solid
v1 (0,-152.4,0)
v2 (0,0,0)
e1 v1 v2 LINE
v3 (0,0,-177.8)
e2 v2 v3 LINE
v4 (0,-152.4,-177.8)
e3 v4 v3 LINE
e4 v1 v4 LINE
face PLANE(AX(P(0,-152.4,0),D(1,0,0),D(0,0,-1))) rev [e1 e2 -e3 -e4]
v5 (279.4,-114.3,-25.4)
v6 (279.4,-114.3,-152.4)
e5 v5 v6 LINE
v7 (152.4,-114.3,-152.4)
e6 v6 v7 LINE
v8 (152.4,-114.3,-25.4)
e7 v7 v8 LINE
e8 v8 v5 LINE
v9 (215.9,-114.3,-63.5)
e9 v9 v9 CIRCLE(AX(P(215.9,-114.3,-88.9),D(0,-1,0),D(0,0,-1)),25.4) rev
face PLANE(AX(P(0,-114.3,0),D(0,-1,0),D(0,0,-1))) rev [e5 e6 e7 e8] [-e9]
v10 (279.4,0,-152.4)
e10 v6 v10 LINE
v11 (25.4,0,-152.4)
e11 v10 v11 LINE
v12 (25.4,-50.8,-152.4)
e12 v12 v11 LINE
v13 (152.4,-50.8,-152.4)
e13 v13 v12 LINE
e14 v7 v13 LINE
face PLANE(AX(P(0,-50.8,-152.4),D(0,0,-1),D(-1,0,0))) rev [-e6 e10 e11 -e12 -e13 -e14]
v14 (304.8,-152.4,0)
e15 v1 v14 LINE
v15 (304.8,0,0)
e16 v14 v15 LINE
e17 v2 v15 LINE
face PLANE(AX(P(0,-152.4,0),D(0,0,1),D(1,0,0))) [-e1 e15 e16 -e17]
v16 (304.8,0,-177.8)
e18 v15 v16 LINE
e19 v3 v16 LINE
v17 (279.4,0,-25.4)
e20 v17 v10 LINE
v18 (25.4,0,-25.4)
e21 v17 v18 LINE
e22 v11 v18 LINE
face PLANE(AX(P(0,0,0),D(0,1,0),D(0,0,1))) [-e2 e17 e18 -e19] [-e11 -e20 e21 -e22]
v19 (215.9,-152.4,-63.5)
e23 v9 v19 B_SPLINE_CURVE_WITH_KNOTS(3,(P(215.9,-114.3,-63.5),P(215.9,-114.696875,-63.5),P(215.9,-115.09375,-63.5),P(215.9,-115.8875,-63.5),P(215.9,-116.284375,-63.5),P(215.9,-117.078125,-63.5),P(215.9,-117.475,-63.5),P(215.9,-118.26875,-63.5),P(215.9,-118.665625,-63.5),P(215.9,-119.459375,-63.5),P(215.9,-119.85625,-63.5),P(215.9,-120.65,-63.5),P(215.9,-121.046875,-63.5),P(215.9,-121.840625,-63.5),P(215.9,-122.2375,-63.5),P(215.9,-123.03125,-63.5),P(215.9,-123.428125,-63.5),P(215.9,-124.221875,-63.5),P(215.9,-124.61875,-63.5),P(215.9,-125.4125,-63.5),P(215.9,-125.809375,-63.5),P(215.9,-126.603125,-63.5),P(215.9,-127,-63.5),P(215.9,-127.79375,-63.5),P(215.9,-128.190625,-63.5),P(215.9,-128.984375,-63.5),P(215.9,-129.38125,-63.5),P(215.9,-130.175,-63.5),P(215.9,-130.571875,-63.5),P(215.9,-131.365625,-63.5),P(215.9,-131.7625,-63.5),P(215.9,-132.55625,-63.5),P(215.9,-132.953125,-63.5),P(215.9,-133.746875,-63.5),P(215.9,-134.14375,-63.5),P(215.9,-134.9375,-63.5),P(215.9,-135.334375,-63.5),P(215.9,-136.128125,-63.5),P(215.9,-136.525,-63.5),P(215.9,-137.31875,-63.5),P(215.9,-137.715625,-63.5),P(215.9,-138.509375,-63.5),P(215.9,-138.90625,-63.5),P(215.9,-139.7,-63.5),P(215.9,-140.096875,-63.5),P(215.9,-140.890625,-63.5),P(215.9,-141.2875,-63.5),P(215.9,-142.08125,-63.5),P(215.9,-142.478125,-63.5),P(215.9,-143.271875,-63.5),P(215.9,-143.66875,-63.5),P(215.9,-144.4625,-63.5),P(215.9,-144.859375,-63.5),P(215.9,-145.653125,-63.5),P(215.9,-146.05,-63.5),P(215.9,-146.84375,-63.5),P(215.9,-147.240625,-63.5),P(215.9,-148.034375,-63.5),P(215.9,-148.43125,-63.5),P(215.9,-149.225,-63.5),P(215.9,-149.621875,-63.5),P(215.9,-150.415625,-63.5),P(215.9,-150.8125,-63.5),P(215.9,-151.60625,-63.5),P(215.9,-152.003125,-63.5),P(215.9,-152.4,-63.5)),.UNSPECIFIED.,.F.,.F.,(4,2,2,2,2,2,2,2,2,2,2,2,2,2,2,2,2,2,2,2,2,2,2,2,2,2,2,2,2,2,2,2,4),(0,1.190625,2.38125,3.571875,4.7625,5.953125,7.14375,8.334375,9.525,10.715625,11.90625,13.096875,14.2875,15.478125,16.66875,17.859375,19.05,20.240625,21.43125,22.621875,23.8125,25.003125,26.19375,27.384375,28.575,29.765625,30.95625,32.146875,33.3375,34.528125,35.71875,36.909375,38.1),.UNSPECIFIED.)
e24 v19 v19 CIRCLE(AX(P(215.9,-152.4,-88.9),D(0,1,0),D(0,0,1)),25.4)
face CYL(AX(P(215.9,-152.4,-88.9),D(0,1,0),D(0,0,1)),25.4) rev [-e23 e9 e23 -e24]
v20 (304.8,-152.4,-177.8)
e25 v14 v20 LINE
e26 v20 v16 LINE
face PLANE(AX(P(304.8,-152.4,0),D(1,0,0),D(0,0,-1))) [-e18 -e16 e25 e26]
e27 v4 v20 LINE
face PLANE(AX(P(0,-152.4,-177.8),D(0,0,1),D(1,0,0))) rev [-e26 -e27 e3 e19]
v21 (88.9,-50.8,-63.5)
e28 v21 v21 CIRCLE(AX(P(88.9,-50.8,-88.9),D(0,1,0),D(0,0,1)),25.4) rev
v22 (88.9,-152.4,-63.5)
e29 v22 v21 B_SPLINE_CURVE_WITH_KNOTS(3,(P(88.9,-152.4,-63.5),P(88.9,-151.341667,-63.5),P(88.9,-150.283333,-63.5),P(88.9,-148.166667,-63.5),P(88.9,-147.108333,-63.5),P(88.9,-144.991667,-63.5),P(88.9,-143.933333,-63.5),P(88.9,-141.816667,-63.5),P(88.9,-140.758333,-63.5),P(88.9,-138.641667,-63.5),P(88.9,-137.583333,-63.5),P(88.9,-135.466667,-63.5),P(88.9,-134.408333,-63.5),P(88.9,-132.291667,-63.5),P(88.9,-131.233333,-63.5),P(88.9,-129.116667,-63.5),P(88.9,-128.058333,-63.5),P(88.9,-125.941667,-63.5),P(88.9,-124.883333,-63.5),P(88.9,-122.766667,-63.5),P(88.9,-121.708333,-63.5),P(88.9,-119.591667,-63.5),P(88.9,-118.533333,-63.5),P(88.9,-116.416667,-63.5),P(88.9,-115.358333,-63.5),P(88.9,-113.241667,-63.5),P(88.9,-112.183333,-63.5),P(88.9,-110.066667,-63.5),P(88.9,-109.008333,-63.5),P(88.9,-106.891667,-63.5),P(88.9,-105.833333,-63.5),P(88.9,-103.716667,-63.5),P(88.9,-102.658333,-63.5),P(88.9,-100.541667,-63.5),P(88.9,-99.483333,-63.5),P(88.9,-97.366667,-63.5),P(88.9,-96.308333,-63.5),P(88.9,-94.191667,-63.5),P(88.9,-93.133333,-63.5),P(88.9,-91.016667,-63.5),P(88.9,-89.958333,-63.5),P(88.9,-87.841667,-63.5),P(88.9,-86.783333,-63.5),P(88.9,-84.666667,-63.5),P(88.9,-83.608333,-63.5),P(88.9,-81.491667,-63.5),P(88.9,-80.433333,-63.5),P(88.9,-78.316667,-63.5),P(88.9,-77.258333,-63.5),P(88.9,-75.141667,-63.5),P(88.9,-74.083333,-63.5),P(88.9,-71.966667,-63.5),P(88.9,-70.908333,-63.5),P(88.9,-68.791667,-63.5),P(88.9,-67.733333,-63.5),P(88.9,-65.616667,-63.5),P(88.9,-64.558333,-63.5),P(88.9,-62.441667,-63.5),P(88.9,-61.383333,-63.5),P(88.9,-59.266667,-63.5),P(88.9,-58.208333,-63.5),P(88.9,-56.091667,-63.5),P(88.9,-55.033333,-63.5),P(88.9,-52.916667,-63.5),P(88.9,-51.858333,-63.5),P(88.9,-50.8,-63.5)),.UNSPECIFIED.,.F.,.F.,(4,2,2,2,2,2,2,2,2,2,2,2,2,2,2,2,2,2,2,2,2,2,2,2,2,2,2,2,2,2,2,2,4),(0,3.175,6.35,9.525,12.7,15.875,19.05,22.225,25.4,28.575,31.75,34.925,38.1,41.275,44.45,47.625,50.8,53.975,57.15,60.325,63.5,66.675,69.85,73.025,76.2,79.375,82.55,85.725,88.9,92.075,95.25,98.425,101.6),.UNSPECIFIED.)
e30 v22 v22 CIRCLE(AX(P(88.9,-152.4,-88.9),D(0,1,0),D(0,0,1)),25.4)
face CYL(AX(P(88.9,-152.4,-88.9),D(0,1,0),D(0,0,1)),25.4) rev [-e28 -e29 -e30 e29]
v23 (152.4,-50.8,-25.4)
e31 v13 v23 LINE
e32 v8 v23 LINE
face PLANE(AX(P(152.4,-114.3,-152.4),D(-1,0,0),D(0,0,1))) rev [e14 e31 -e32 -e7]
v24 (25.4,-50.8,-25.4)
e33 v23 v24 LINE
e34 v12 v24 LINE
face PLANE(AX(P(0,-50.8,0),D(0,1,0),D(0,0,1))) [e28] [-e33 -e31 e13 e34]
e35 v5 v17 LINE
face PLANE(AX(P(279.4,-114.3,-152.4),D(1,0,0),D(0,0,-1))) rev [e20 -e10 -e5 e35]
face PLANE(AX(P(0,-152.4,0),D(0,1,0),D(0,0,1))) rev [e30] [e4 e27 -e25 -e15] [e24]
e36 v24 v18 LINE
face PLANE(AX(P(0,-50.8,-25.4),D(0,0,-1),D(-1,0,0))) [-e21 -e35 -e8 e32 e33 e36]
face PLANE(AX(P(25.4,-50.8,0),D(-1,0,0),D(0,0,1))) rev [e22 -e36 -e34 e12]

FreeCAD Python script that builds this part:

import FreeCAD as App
import Part
import Sketcher
from FreeCAD import Vector
Q = App.Units.Quantity


def add_polygon(sketch, points):
    """Adds a closed chain of lines whose ends are joined by coincident constraints."""
    first, n = sketch.GeometryCount, len(points)
    for a, b in zip(points, points[1:] + points[:1]):
        sketch.addGeometry(Part.LineSegment(App.Vector(*a, 0), App.Vector(*b, 0)), False)
    for i in range(n):
        sketch.addConstraint(Sketcher.Constraint("Coincident", first + i, 2, first + (i + 1) % n, 1))

doc = App.newDocument("Part")
body = doc.addObject("PartDesign::Body", "Body")

sketch1 = body.newObject("Sketcher::SketchObject", "Sketch")
sketch1.AttachmentSupport = (doc.getObject("XZ_Plane"), [""])
sketch1.MapMode = "FlatFace"
add_polygon(sketch1, [(0, -178), (0, 0), (305, 0), (305, -178)])
add_polygon(sketch1, [(279, -25), (25, -25), (25, -152), (279, -152)])
sketch1.addConstraint([
    Sketcher.Constraint("Vertical", 0),
    Sketcher.Constraint("Horizontal", 1),
    Sketcher.Constraint("Vertical", 2),
    Sketcher.Constraint("Horizontal", 3),
    Sketcher.Constraint("Horizontal", 4),
    Sketcher.Constraint("Vertical", 5),
    Sketcher.Constraint("Horizontal", 6),
    Sketcher.Constraint("Vertical", 7),
    Sketcher.Constraint("Coincident", 0, 2, -1, 1),
    Sketcher.Constraint("DistanceX", 1, 1, 1, 2, Q("12 in")),
    Sketcher.Constraint("DistanceX", 4, 2, 4, 1, Q("10 in")),
    Sketcher.Constraint("DistanceY", 0, 1, 0, 2, Q("7 in")),
    Sketcher.Constraint("DistanceY", 5, 2, 5, 1, Q("5 in")),
    Sketcher.Constraint("DistanceX", -1, 1, 4, 2, Q("1 in")),
    Sketcher.Constraint("DistanceY", 4, 2, -1, 1, Q("1 in")),
])
pad1 = body.newObject("PartDesign::Pad", "Pad")
pad1.Profile = sketch1
pad1.Length = Q("6 in")

sketch2 = body.newObject("Sketcher::SketchObject", "Sketch001")
sketch2.AttachmentSupport = (doc.getObject("XZ_Plane"), [""])
sketch2.MapMode = "FlatFace"
add_polygon(sketch2, [(279, -25), (279, -152), (25, -152), (25, -25)])
sketch2.addGeometry(Part.Circle(Vector(216, -89, 0), Vector(0, 0, 1), 25), False)
sketch2.addGeometry(Part.Circle(Vector(89, -89, 0), Vector(0, 0, 1), 25), False)
sketch2.addConstraint([
    Sketcher.Constraint("Vertical", 0),
    Sketcher.Constraint("Horizontal", 1),
    Sketcher.Constraint("Vertical", 2),
    Sketcher.Constraint("Horizontal", 3),
    Sketcher.Constraint("Equal", 4, 5),
    Sketcher.Constraint("Horizontal", 4, 3, 5, 3),
    Sketcher.Constraint("Diameter", 4, Q("2 in")),
    Sketcher.Constraint("DistanceX", 1, 2, 1, 1, Q("10 in")),
    Sketcher.Constraint("DistanceY", 0, 2, 0, 1, Q("5 in")),
    Sketcher.Constraint("DistanceX", -1, 1, 0, 2, Q("11 in")),
    Sketcher.Constraint("DistanceY", 0, 2, -1, 1, Q("6 in")),
    Sketcher.Constraint("DistanceX", 5, 3, 4, 3, Q("5 in")),
    Sketcher.Constraint("DistanceX", -1, 1, 4, 3, Q("8.5 in")),
    Sketcher.Constraint("DistanceY", 4, 3, -1, 1, Q("3.5 in")),
])
pad2 = body.newObject("PartDesign::Pad", "Pad001")
pad2.Profile = sketch2
pad2.Length = Q("6 in")

sketch3 = body.newObject("Sketcher::SketchObject", "Sketch002")
sketch3.AttachmentSupport = (doc.getObject("XZ_Plane"), [""])
sketch3.MapMode = "FlatFace"
add_polygon(sketch3, [(25, -152), (25, -25), (152, -25), (152, -152)])
sketch3.addConstraint([
    Sketcher.Constraint("Vertical", 0),
    Sketcher.Constraint("Horizontal", 1),
    Sketcher.Constraint("Vertical", 2),
    Sketcher.Constraint("Horizontal", 3),
    Sketcher.Constraint("Equal", 3, 0),
    Sketcher.Constraint("DistanceX", 1, 1, 1, 2, Q("5 in")),
    Sketcher.Constraint("DistanceX", -1, 1, 0, 2, Q("1 in")),
    Sketcher.Constraint("DistanceY", 0, 2, -1, 1, Q("1 in")),
])
pocket1 = body.newObject("PartDesign::Pocket", "Pocket")
pocket1.Profile = sketch3
pocket1.Length = Q("2 in")
pocket1.Reversed = True

sketch4 = body.newObject("Sketcher::SketchObject", "Sketch003")
sketch4.AttachmentSupport = (doc.getObject("XZ_Plane"), [""])
sketch4.MapMode = "FlatFace"
add_polygon(sketch4, [(152, -152), (152, -25), (279, -25), (279, -152)])
sketch4.addConstraint([
    Sketcher.Constraint("Vertical", 0),
    Sketcher.Constraint("Horizontal", 1),
    Sketcher.Constraint("Vertical", 2),
    Sketcher.Constraint("Horizontal", 3),
    Sketcher.Constraint("Equal", 3, 0),
    Sketcher.Constraint("DistanceX", 1, 1, 1, 2, Q("5 in")),
    Sketcher.Constraint("DistanceX", -1, 1, 0, 2, Q("6 in")),
    Sketcher.Constraint("DistanceY", 0, 2, -1, 1, Q("1 in")),
])
pocket2 = body.newObject("PartDesign::Pocket", "Pocket001")
pocket2.Profile = sketch4
pocket2.Length = Q("4.5 in")
pocket2.Reversed = True

doc.recompute()
